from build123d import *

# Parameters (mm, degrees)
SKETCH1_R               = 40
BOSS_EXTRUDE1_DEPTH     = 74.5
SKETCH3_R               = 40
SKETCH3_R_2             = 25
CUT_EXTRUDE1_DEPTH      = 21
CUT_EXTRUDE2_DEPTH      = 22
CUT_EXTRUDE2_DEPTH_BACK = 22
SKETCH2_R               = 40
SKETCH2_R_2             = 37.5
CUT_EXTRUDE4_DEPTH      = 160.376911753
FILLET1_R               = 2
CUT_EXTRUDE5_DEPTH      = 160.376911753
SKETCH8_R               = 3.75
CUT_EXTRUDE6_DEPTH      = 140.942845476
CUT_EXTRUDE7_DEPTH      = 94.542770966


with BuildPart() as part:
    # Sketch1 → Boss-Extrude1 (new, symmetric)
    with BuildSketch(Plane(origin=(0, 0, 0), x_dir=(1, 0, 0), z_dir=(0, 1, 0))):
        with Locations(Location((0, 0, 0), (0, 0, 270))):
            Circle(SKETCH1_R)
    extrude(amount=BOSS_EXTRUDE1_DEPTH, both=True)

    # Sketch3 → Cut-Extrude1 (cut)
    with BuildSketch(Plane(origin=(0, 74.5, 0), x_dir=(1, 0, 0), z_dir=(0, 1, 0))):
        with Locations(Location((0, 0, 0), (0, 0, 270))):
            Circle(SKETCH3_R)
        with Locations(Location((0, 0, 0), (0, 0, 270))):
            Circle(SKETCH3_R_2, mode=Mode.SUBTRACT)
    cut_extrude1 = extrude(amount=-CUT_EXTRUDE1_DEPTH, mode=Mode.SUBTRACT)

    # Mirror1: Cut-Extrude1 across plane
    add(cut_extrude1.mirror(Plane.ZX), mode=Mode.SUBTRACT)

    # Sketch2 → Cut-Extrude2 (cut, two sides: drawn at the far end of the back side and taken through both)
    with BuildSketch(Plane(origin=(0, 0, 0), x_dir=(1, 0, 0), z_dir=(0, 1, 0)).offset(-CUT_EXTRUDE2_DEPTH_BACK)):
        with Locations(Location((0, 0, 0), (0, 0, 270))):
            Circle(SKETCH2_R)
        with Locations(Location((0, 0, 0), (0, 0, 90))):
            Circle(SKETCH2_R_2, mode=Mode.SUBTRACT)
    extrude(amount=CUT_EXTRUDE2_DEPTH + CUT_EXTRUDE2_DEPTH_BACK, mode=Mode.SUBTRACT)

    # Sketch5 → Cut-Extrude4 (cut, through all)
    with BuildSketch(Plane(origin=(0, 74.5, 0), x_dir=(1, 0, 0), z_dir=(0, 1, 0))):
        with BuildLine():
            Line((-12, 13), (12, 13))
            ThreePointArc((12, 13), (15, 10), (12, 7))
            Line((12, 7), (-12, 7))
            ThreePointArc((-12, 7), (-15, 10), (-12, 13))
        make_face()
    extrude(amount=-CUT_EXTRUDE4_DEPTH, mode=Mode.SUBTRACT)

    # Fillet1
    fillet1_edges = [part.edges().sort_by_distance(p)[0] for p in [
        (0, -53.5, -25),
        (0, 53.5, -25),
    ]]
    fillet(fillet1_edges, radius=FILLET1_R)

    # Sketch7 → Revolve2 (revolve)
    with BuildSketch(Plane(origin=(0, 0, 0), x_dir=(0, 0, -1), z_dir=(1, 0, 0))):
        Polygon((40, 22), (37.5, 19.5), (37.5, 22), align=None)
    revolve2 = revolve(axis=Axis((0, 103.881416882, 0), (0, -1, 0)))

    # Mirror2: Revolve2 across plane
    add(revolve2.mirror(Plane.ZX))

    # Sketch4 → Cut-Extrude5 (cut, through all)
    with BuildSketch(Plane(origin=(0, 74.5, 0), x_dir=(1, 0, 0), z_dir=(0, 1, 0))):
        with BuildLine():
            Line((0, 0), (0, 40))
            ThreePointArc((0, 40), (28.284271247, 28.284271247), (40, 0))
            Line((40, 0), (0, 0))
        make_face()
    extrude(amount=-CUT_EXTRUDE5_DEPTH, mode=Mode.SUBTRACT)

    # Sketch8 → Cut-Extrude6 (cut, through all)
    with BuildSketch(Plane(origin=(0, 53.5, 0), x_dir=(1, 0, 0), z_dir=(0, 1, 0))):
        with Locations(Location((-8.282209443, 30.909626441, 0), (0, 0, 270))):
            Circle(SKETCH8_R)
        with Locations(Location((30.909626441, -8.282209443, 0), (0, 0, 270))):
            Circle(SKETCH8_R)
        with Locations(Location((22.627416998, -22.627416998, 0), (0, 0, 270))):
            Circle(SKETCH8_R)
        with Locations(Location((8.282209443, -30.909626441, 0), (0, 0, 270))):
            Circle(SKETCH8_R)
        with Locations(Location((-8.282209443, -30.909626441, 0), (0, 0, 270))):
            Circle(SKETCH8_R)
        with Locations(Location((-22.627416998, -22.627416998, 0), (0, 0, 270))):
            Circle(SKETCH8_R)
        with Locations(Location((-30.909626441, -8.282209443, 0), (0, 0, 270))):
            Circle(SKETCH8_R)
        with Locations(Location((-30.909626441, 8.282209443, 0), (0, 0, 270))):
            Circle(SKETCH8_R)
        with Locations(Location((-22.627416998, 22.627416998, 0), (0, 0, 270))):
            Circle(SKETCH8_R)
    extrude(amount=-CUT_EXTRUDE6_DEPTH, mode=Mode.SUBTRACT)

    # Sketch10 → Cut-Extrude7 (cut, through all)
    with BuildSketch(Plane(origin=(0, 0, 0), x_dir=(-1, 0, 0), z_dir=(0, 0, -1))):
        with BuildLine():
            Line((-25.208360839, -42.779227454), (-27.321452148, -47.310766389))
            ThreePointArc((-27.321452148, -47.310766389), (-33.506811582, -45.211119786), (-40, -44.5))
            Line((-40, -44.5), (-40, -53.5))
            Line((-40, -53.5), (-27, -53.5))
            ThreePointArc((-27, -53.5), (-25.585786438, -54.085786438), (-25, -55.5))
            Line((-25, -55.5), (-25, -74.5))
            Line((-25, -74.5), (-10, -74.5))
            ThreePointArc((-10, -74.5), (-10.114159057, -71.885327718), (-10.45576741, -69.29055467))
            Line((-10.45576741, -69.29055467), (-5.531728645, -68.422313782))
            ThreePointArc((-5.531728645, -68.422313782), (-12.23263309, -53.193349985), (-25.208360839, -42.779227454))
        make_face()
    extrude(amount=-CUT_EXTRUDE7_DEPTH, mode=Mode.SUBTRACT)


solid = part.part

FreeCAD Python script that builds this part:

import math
import FreeCAD as App
import Part
import Sketcher

V = App.Vector
Q = App.Units.Quantity


def edges_at(feature, points):
    """Names of the edges that pass closest to the given points."""
    edges = feature.Shape.Edges
    near = lambda p: min(range(len(edges)), key=lambda i: edges[i].distToShape(Part.Vertex(*p))[0])
    return sorted({f"Edge{near(p) + 1}" for p in points})

doc = App.newDocument("Part")
body = doc.addObject("PartDesign::Body", "Body")

# Sketch on XZ plane
sketch1 = body.newObject("Sketcher::SketchObject", "Sketch")
sketch1.AttachmentSupport = (doc.getObject("XZ_Plane"), [""])
sketch1.MapMode = "FlatFace"
sketch1.addGeometry(Part.Circle(V(0, 0, 0), V(0, 0, 1), 40), False)
sketch1.addConstraint(Sketcher.Constraint("Coincident", 0, 3, -1, 1))
sketch1.addConstraint(Sketcher.Constraint("Diameter", 0, Q("80 mm")))
pad1 = body.newObject("PartDesign::Pad", "Pad")
pad1.Profile = sketch1
pad1.Length = 149
pad1.Midplane = True

# Sketch on XZ plane
sketch2 = body.newObject("Sketcher::SketchObject", "Sketch001")
sketch2.AttachmentSupport = (doc.getObject("XZ_Plane"), [""])
sketch2.MapMode = "FlatFace"
sketch2.AttachmentOffset = App.Placement(V(0, 0, -74.5), App.Rotation())
sketch2.addGeometry(Part.Circle(V(0, 0, 0), V(0, 0, 1), 40), False)
sketch2.addGeometry(Part.Circle(V(0, 0, 0), V(0, 0, 1), 25), False)
sketch2.addConstraint(Sketcher.Constraint("Coincident", 0, 3, -1, 1))
sketch2.addConstraint(Sketcher.Constraint("Coincident", 1, 3, -1, 1))
sketch2.addConstraint(Sketcher.Constraint("Diameter", 0, Q("80 mm")))
sketch2.addConstraint(Sketcher.Constraint("Diameter", 1, Q("50 mm")))
pocket1 = body.newObject("PartDesign::Pocket", "Pocket")
pocket1.Profile = sketch2
pocket1.Length = 21
pocket1.Reversed = True
doc.recompute()

mirrored = body.newObject("PartDesign::Mirrored", "Mirrored")
mirrored.Originals = [pocket1]
mirrored.MirrorPlane = (doc.getObject("XZ_Plane"), [""])
body.Tip = mirrored

# Sketch on XZ plane
sketch3 = body.newObject("Sketcher::SketchObject", "Sketch002")
sketch3.AttachmentSupport = (doc.getObject("XZ_Plane"), [""])
sketch3.MapMode = "FlatFace"
sketch3.addGeometry(Part.Circle(V(0, 0, 0), V(0, 0, 1), 40), False)
sketch3.addGeometry(Part.Circle(V(0, 0, 0), V(0, 0, 1), 38), False)
sketch3.addConstraint(Sketcher.Constraint("Coincident", 0, 3, -1, 1))
sketch3.addConstraint(Sketcher.Constraint("Coincident", 1, 3, -1, 1))
sketch3.addConstraint(Sketcher.Constraint("Diameter", 0, Q("80 mm")))
sketch3.addConstraint(Sketcher.Constraint("Diameter", 1, Q("75 mm")))
pocket2 = body.newObject("PartDesign::Pocket", "Pocket001")
pocket2.Profile = sketch3
pocket2.Type = "TwoLengths"
pocket2.Length = 22
pocket2.Length2 = 22

# Sketch on XZ plane
sketch4 = body.newObject("Sketcher::SketchObject", "Sketch003")
sketch4.AttachmentSupport = (doc.getObject("XZ_Plane"), [""])
sketch4.MapMode = "FlatFace"
sketch4.AttachmentOffset = App.Placement(V(0, 0, -74.5), App.Rotation())
sketch4.addGeometry(Part.LineSegment(V(12, -13, 0), V(-12, -13, 0)), False)
sketch4.addGeometry(Part.ArcOfCircle(Part.Circle(V(-12, -10, 0), V(0, 0, 1), 3), math.radians(90), math.radians(270)), False)
sketch4.addGeometry(Part.LineSegment(V(-12, -7, 0), V(12, -7, 0)), False)
sketch4.addGeometry(Part.ArcOfCircle(Part.Circle(V(12, -10, 0), V(0, 0, 1), 3), math.radians(-90), math.radians(90)), False)
sketch4.addConstraint(Sketcher.Constraint("Tangent", 0, 2, 1, 2))
sketch4.addConstraint(Sketcher.Constraint("Tangent", 1, 1, 2, 1))
sketch4.addConstraint(Sketcher.Constraint("Tangent", 2, 2, 3, 2))
sketch4.addConstraint(Sketcher.Constraint("Tangent", 3, 1, 0, 1))
sketch4.addConstraint(Sketcher.Constraint("Horizontal", 0))
sketch4.addConstraint(Sketcher.Constraint("Horizontal", 2))
sketch4.addConstraint(Sketcher.Constraint("Radius", 1, Q("3 mm")))
sketch4.addConstraint(Sketcher.Constraint("DistanceX", 0, 2, 0, 1, Q("24 mm")))
sketch4.addConstraint(Sketcher.Constraint("DistanceX", 1, 3, -1, 1, Q("12 mm")))
sketch4.addConstraint(Sketcher.Constraint("DistanceY", 1, 3, -1, 1, Q("10 mm")))
pocket3 = body.newObject("PartDesign::Pocket", "Pocket002")
pocket3.Profile = sketch4
pocket3.Type = "ThroughAll"
pocket3.Reversed = True
doc.recompute()

fillet = body.newObject("PartDesign::Fillet", "Fillet")
fillet.Base = (pocket3, edges_at(pocket3, [(0, -53.5, -25), (0, 53.5, -25)]))
fillet.Radius = 2

# Sketch on YZ plane
sketch5 = body.newObject("Sketcher::SketchObject", "Sketch004")
sketch5.AttachmentSupport = (doc.getObject("YZ_Plane"), [""])
sketch5.MapMode = "FlatFace"
sketch5.addGeometry(Part.LineSegment(V(19.5, -37.5, 0), V(22, -40, 0)), False)
sketch5.addGeometry(Part.LineSegment(V(22, -40, 0), V(22, -37.5, 0)), False)
sketch5.addGeometry(Part.LineSegment(V(22, -37.5, 0), V(19.5, -37.5, 0)), False)
sketch5.addConstraint(Sketcher.Constraint("Coincident", 0, 2, 1, 1))
sketch5.addConstraint(Sketcher.Constraint("Coincident", 1, 2, 2, 1))
sketch5.addConstraint(Sketcher.Constraint("Coincident", 2, 2, 0, 1))
sketch5.addConstraint(Sketcher.Constraint("Vertical", 1))
sketch5.addConstraint(Sketcher.Constraint("Horizontal", 2))
sketch5.addConstraint(Sketcher.Constraint("Equal", 2, 1))
sketch5.addConstraint(Sketcher.Constraint("DistanceX", 2, 2, 2, 1, Q("2.5 mm")))
sketch5.addConstraint(Sketcher.Constraint("DistanceX", -1, 1, 0, 2, Q("22 mm")))
sketch5.addConstraint(Sketcher.Constraint("DistanceY", 0, 2, -1, 1, Q("40 mm")))
revolution = body.newObject("PartDesign::Revolution", "Revolution")
revolution.Profile = sketch5
revolution.ReferenceAxis = (sketch5, ["H_Axis"])
revolution.Angle = 360
doc.recompute()

mirrored2 = body.newObject("PartDesign::Mirrored", "Mirrored001")
mirrored2.Originals = [revolution]
mirrored2.MirrorPlane = (doc.getObject("XZ_Plane"), [""])
body.Tip = mirrored2

# Sketch on XZ plane
sketch6 = body.newObject("Sketcher::SketchObject", "Sketch005")
sketch6.AttachmentSupport = (doc.getObject("XZ_Plane"), [""])
sketch6.MapMode = "FlatFace"
sketch6.AttachmentOffset = App.Placement(V(0, 0, -74.5), App.Rotation())
sketch6.addGeometry(Part.LineSegment(V(0, -40, 0), V(0, 0, 0)), False)
sketch6.addGeometry(Part.LineSegment(V(0, 0, 0), V(40, 0, 0)), False)
sketch6.addGeometry(Part.ArcOfCircle(Part.Circle(V(0, 0, 0), V(0, 0, 1), 40), math.radians(-90), math.radians(0)), False)
sketch6.addConstraint(Sketcher.Constraint("Coincident", 0, 2, 1, 1))
sketch6.addConstraint(Sketcher.Constraint("Coincident", 1, 2, 2, 2))
sketch6.addConstraint(Sketcher.Constraint("Coincident", 2, 1, 0, 1))
sketch6.addConstraint(Sketcher.Constraint("Vertical", 0))
sketch6.addConstraint(Sketcher.Constraint("Horizontal", 1))
sketch6.addConstraint(Sketcher.Constraint("Coincident", 2, 3, -1, 1))
sketch6.addConstraint(Sketcher.Constraint("Coincident", 0, 2, -1, 1))
sketch6.addConstraint(Sketcher.Constraint("Radius", 2, Q("40 mm")))
pocket4 = body.newObject("PartDesign::Pocket", "Pocket003")
pocket4.Profile = sketch6
pocket4.Type = "ThroughAll"
pocket4.Reversed = True

# Sketch on XZ plane
sketch7 = body.newObject("Sketcher::SketchObject", "Sketch006")
sketch7.AttachmentSupport = (doc.getObject("XZ_Plane"), [""])
sketch7.MapMode = "FlatFace"
sketch7.AttachmentOffset = App.Placement(V(0, 0, -53.5), App.Rotation())
sketch7.addGeometry(Part.Circle(V(-8.3, -30.9, 0), V(0, 0, 1), 3.8), False)
sketch7.addGeometry(Part.Circle(V(30.9, 8.3, 0), V(0, 0, 1), 3.8), False)
sketch7.addGeometry(Part.Circle(V(22.6, 22.6, 0), V(0, 0, 1), 3.8), False)
sketch7.addGeometry(Part.Circle(V(8.3, 30.9, 0), V(0, 0, 1), 3.8), False)
sketch7.addGeometry(Part.Circle(V(-8.3, 30.9, 0), V(0, 0, 1), 3.8), False)
sketch7.addGeometry(Part.Circle(V(-22.6, 22.6, 0), V(0, 0, 1), 3.8), False)
sketch7.addGeometry(Part.Circle(V(-30.9, 8.3, 0), V(0, 0, 1), 3.8), False)
sketch7.addGeometry(Part.Circle(V(-30.9, -8.3, 0), V(0, 0, 1), 3.8), False)
sketch7.addGeometry(Part.Circle(V(-22.6, -22.6, 0), V(0, 0, 1), 3.8), False)
sketch7.addConstraint(Sketcher.Constraint("Equal", 0, 1))
sketch7.addConstraint(Sketcher.Constraint("Equal", 1, 2))
sketch7.addConstraint(Sketcher.Constraint("Equal", 2, 3))
sketch7.addConstraint(Sketcher.Constraint("Equal", 3, 4))
sketch7.addConstraint(Sketcher.Constraint("Equal", 4, 5))
sketch7.addConstraint(Sketcher.Constraint("Equal", 5, 6))
sketch7.addConstraint(Sketcher.Constraint("Equal", 6, 7))
sketch7.addConstraint(Sketcher.Constraint("Equal", 7, 8))
sketch7.addConstraint(Sketcher.Constraint("Symmetric", 0, 3, 3, 3, -1, 1))
sketch7.addConstraint(Sketcher.Constraint("Symmetric", 1, 3, 7, 3, -1, 1))
sketch7.addConstraint(Sketcher.Constraint("Symmetric", 2, 3, 8, 3, -1, 1))
sketch7.addConstraint(Sketcher.Constraint("Symmetric", 3, 3, 4, 3, -2))
sketch7.addConstraint(Sketcher.Constraint("Symmetric", 2, 3, 5, 3, -2))
sketch7.addConstraint(Sketcher.Constraint("Symmetric", 1, 3, 6, 3, -2))
sketch7.addConstraint(Sketcher.Constraint("Diameter", 0, Q("7.5 mm")))
sketch7.addConstraint(Sketcher.Constraint("DistanceX", 0, 3, -1, 1, Q("8.282209 mm")))
sketch7.addConstraint(Sketcher.Constraint("DistanceY", -1, 1, 1, 3, Q("8.282209 mm")))
sketch7.addConstraint(Sketcher.Constraint("DistanceX", 2, 3, 1, 3, Q("8.282209 mm")))
sketch7.addConstraint(Sketcher.Constraint("DistanceY", 2, 3, 3, 3, Q("8.282209 mm")))
sketch7.addConstraint(Sketcher.Constraint("DistanceY", 0, 3, -1, 1, Q("30.909626 mm")))
sketch7.addConstraint(Sketcher.Constraint("DistanceX", -1, 1, 1, 3, Q("30.909626 mm")))
pocket5 = body.newObject("PartDesign::Pocket", "Pocket004")
pocket5.Profile = sketch7
pocket5.Type = "ThroughAll"
pocket5.Reversed = True

# Sketch on XY plane
sketch8 = body.newObject("Sketcher::SketchObject", "Sketch007")
sketch8.AttachmentSupport = (doc.getObject("XY_Plane"), [""])
sketch8.MapMode = "FlatFace"
sketch8.addGeometry(Part.LineSegment(V(25.2, -42.8, 0), V(27.3, -47.3, 0)), False)
sketch8.addGeometry(Part.ArcOfCircle(Part.Circle(V(40, -74.5, 0), V(0, 0, 1), 30), math.radians(90), math.radians(115)), False)
sketch8.addGeometry(Part.LineSegment(V(40, -44.5, 0), V(40, -53.5, 0)), False)
sketch8.addGeometry(Part.LineSegment(V(40, -53.5, 0), V(27, -53.5, 0)), False)
sketch8.addGeometry(Part.ArcOfCircle(Part.Circle(V(27, -55.5, 0), V(0, 0, 1), 2), math.radians(90), math.radians(180)), False)
sketch8.addGeometry(Part.LineSegment(V(25, -55.5, 0), V(25, -74.5, 0)), False)
sketch8.addGeometry(Part.LineSegment(V(25, -74.5, 0), V(10, -74.5, 0)), False)
sketch8.addGeometry(Part.ArcOfCircle(Part.Circle(V(40, -74.5, 0), V(0, 0, 1), 30), math.radians(170), math.radians(180)), False)
sketch8.addGeometry(Part.LineSegment(V(10.5, -69.3, 0), V(5.5, -68.4, 0)), False)
sketch8.addGeometry(Part.ArcOfCircle(Part.Circle(V(40, -74.5, 0), V(0, 0, 1), 35), math.radians(115), math.radians(170)), False)
sketch8.addConstraint(Sketcher.Constraint("Coincident", 0, 2, 1, 2))
sketch8.addConstraint(Sketcher.Constraint("Coincident", 1, 1, 2, 1))
sketch8.addConstraint(Sketcher.Constraint("Coincident", 2, 2, 3, 1))
sketch8.addConstraint(Sketcher.Constraint("Tangent", 3, 2, 4, 1))
sketch8.addConstraint(Sketcher.Constraint("Tangent", 4, 2, 5, 1))
sketch8.addConstraint(Sketcher.Constraint("Coincident", 5, 2, 6, 1))
sketch8.addConstraint(Sketcher.Constraint("Coincident", 6, 2, 7, 2))
sketch8.addConstraint(Sketcher.Constraint("Coincident", 7, 1, 8, 1))
sketch8.addConstraint(Sketcher.Constraint("Coincident", 8, 2, 9, 2))
sketch8.addConstraint(Sketcher.Constraint("Coincident", 9, 1, 0, 1))
sketch8.addConstraint(Sketcher.Constraint("Vertical", 2))
sketch8.addConstraint(Sketcher.Constraint("Horizontal", 3))
sketch8.addConstraint(Sketcher.Constraint("Vertical", 5))
sketch8.addConstraint(Sketcher.Constraint("Horizontal", 6))
sketch8.addConstraint(Sketcher.Constraint("Coincident", 7, 3, 1, 3))
sketch8.addConstraint(Sketcher.Constraint("Coincident", 9, 3, 1, 3))
sketch8.addConstraint(Sketcher.Constraint("Equal", 1, 7))
sketch8.addConstraint(Sketcher.Constraint("Horizontal", 9, 3, 5, 2))
sketch8.addConstraint(Sketcher.Constraint("Vertical", 9, 3, 1, 1))
sketch8.addConstraint(Sketcher.Constraint("Radius", 1, Q("30 mm")))
sketch8.addConstraint(Sketcher.Constraint("Radius", 4, Q("2 mm")))
sketch8.addConstraint(Sketcher.Constraint("Radius", 9, Q("35 mm")))
sketch8.addConstraint(Sketcher.Constraint("DistanceX", 3, 2, 3, 1, Q("13 mm")))
sketch8.addConstraint(Sketcher.Constraint("DistanceY", 2, 2, 2, 1, Q("9 mm")))
sketch8.addConstraint(Sketcher.Constraint("Angle", 0, Q("-65 deg")))
sketch8.addConstraint(Sketcher.Constraint("Angle", 8, Q("170 deg")))
sketch8.addConstraint(Sketcher.Constraint("DistanceX", -1, 1, 1, 3, Q("40 mm")))
sketch8.addConstraint(Sketcher.Constraint("DistanceY", 1, 3, -1, 1, Q("74.5 mm")))
sketch8.addConstraint(Sketcher.Constraint("DistanceX", -1, 1, 8, 2, Q("5.531729 mm")))
sketch8.addConstraint(Sketcher.Constraint("DistanceX", -1, 1, 9, 1, Q("25.208361 mm")))
pocket6 = body.newObject("PartDesign::Pocket", "Pocket005")
pocket6.Profile = sketch8
pocket6.Type = "ThroughAll"
pocket6.Reversed = True

doc.recompute()
